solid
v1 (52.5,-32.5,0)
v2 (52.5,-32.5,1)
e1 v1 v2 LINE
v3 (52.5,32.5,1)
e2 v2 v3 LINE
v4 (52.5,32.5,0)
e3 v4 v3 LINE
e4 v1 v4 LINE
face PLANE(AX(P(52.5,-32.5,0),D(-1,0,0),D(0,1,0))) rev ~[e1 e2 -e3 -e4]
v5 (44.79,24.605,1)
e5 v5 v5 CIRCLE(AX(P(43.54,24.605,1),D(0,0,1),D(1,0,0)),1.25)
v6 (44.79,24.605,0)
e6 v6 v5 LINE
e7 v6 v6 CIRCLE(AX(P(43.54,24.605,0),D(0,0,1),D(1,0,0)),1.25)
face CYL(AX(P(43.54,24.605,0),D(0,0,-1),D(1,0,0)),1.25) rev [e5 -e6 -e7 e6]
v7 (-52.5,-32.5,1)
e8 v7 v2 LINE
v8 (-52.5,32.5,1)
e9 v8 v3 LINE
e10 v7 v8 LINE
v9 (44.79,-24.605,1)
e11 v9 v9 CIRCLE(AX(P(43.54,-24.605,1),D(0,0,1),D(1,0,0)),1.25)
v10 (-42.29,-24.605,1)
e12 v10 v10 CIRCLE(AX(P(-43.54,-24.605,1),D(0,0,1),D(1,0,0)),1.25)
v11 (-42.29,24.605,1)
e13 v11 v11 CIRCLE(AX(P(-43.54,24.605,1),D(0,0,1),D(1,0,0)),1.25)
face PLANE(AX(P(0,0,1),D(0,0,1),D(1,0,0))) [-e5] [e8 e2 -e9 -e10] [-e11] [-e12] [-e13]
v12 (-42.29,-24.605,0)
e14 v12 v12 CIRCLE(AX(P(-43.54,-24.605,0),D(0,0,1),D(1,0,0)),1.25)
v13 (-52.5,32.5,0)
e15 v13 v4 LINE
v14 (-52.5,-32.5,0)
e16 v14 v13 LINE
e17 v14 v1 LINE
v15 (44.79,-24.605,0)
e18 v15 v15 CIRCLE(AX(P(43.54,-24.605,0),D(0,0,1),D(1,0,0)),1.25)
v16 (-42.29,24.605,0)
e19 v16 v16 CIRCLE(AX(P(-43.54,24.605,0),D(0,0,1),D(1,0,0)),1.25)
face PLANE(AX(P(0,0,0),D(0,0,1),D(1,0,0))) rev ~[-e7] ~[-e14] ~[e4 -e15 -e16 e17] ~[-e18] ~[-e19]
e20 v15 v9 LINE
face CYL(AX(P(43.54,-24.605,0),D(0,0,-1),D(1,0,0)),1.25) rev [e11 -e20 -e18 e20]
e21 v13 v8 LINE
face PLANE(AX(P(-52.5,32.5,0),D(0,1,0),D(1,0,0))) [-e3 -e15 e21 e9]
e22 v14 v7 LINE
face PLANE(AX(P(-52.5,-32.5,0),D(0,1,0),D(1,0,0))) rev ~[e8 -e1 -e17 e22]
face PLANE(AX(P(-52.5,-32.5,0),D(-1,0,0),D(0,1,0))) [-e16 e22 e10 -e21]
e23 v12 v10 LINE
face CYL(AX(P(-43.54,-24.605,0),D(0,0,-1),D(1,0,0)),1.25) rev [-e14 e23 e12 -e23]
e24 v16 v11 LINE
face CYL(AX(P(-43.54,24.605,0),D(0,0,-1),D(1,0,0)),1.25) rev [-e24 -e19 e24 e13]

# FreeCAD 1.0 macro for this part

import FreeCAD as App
import Part
import Sketcher
from FreeCAD import Vector
Q = App.Units.Quantity

doc = App.newDocument("Part")
body = doc.addObject("PartDesign::Body", "Body")

sketch1 = doc.addObject("Sketcher::SketchObject", "Sketch")
body.addObject(sketch1)
sketch1.AttachmentSupport = (doc.XY_Plane, [""])
sketch1.MapMode = "FlatFace"
sketch1.addGeometry([
    Part.LineSegment(Vector(-52.5, 32.5, 0), Vector(-52.5, -32.5, 0)),
    Part.LineSegment(Vector(-52.5, -32.5, 0), Vector(52.5, -32.5, 0)),
    Part.LineSegment(Vector(52.5, -32.5, 0), Vector(52.5, 32.5, 0)),
    Part.LineSegment(Vector(52.5, 32.5, 0), Vector(-52.5, 32.5, 0)),
    Part.Circle(Vector(-43.5, -24.6, 0), Vector(0, 0, 1), 1.2),
    Part.Circle(Vector(43.5, -24.6, 0), Vector(0, 0, 1), 1.2),
    Part.Circle(Vector(-43.5, 24.6, 0), Vector(0, 0, 1), 1.2),
    Part.Circle(Vector(43.5, 24.6, 0), Vector(0, 0, 1), 1.2),
], False)
sketch1.addConstraint([
    Sketcher.Constraint("Coincident", 0, 2, 1, 1),
    Sketcher.Constraint("Coincident", 1, 2, 2, 1),
    Sketcher.Constraint("Coincident", 2, 2, 3, 1),
    Sketcher.Constraint("Coincident", 3, 2, 0, 1),
    Sketcher.Constraint("Vertical", 0),
    Sketcher.Constraint("Horizontal", 1),
    Sketcher.Constraint("Vertical", 2),
    Sketcher.Constraint("Horizontal", 3),
    Sketcher.Constraint("Equal", 4, 5),
    Sketcher.Constraint("Equal", 5, 6),
    Sketcher.Constraint("Equal", 6, 7),
    Sketcher.Constraint("Symmetric", 5, 3, 6, 3, -1, 1),
    Sketcher.Constraint("Symmetric", 4, 3, 7, 3, -1, 1),
    Sketcher.Constraint("Symmetric", 0, 2, 2, 2, -1, 1),
    Sketcher.Constraint("Symmetric", 4, 3, 5, 3, -2),
    Sketcher.Constraint("Diameter", 4, Q("2.5 mm")),
    Sketcher.Constraint("DistanceX", 1, 1, 1, 2, Q("105 mm")),
    Sketcher.Constraint("DistanceY", 0, 2, 0, 1, Q("65 mm")),
    Sketcher.Constraint("DistanceX", 4, 3, -1, 1, Q("43.54 mm")),
    Sketcher.Constraint("DistanceY", 4, 3, 6, 3, Q("49.21 mm")),
])
pad1 = doc.addObject("PartDesign::Pad", "Pad")
body.addObject(pad1)
pad1.Profile = sketch1
pad1.Length = 1

doc.recompute()
